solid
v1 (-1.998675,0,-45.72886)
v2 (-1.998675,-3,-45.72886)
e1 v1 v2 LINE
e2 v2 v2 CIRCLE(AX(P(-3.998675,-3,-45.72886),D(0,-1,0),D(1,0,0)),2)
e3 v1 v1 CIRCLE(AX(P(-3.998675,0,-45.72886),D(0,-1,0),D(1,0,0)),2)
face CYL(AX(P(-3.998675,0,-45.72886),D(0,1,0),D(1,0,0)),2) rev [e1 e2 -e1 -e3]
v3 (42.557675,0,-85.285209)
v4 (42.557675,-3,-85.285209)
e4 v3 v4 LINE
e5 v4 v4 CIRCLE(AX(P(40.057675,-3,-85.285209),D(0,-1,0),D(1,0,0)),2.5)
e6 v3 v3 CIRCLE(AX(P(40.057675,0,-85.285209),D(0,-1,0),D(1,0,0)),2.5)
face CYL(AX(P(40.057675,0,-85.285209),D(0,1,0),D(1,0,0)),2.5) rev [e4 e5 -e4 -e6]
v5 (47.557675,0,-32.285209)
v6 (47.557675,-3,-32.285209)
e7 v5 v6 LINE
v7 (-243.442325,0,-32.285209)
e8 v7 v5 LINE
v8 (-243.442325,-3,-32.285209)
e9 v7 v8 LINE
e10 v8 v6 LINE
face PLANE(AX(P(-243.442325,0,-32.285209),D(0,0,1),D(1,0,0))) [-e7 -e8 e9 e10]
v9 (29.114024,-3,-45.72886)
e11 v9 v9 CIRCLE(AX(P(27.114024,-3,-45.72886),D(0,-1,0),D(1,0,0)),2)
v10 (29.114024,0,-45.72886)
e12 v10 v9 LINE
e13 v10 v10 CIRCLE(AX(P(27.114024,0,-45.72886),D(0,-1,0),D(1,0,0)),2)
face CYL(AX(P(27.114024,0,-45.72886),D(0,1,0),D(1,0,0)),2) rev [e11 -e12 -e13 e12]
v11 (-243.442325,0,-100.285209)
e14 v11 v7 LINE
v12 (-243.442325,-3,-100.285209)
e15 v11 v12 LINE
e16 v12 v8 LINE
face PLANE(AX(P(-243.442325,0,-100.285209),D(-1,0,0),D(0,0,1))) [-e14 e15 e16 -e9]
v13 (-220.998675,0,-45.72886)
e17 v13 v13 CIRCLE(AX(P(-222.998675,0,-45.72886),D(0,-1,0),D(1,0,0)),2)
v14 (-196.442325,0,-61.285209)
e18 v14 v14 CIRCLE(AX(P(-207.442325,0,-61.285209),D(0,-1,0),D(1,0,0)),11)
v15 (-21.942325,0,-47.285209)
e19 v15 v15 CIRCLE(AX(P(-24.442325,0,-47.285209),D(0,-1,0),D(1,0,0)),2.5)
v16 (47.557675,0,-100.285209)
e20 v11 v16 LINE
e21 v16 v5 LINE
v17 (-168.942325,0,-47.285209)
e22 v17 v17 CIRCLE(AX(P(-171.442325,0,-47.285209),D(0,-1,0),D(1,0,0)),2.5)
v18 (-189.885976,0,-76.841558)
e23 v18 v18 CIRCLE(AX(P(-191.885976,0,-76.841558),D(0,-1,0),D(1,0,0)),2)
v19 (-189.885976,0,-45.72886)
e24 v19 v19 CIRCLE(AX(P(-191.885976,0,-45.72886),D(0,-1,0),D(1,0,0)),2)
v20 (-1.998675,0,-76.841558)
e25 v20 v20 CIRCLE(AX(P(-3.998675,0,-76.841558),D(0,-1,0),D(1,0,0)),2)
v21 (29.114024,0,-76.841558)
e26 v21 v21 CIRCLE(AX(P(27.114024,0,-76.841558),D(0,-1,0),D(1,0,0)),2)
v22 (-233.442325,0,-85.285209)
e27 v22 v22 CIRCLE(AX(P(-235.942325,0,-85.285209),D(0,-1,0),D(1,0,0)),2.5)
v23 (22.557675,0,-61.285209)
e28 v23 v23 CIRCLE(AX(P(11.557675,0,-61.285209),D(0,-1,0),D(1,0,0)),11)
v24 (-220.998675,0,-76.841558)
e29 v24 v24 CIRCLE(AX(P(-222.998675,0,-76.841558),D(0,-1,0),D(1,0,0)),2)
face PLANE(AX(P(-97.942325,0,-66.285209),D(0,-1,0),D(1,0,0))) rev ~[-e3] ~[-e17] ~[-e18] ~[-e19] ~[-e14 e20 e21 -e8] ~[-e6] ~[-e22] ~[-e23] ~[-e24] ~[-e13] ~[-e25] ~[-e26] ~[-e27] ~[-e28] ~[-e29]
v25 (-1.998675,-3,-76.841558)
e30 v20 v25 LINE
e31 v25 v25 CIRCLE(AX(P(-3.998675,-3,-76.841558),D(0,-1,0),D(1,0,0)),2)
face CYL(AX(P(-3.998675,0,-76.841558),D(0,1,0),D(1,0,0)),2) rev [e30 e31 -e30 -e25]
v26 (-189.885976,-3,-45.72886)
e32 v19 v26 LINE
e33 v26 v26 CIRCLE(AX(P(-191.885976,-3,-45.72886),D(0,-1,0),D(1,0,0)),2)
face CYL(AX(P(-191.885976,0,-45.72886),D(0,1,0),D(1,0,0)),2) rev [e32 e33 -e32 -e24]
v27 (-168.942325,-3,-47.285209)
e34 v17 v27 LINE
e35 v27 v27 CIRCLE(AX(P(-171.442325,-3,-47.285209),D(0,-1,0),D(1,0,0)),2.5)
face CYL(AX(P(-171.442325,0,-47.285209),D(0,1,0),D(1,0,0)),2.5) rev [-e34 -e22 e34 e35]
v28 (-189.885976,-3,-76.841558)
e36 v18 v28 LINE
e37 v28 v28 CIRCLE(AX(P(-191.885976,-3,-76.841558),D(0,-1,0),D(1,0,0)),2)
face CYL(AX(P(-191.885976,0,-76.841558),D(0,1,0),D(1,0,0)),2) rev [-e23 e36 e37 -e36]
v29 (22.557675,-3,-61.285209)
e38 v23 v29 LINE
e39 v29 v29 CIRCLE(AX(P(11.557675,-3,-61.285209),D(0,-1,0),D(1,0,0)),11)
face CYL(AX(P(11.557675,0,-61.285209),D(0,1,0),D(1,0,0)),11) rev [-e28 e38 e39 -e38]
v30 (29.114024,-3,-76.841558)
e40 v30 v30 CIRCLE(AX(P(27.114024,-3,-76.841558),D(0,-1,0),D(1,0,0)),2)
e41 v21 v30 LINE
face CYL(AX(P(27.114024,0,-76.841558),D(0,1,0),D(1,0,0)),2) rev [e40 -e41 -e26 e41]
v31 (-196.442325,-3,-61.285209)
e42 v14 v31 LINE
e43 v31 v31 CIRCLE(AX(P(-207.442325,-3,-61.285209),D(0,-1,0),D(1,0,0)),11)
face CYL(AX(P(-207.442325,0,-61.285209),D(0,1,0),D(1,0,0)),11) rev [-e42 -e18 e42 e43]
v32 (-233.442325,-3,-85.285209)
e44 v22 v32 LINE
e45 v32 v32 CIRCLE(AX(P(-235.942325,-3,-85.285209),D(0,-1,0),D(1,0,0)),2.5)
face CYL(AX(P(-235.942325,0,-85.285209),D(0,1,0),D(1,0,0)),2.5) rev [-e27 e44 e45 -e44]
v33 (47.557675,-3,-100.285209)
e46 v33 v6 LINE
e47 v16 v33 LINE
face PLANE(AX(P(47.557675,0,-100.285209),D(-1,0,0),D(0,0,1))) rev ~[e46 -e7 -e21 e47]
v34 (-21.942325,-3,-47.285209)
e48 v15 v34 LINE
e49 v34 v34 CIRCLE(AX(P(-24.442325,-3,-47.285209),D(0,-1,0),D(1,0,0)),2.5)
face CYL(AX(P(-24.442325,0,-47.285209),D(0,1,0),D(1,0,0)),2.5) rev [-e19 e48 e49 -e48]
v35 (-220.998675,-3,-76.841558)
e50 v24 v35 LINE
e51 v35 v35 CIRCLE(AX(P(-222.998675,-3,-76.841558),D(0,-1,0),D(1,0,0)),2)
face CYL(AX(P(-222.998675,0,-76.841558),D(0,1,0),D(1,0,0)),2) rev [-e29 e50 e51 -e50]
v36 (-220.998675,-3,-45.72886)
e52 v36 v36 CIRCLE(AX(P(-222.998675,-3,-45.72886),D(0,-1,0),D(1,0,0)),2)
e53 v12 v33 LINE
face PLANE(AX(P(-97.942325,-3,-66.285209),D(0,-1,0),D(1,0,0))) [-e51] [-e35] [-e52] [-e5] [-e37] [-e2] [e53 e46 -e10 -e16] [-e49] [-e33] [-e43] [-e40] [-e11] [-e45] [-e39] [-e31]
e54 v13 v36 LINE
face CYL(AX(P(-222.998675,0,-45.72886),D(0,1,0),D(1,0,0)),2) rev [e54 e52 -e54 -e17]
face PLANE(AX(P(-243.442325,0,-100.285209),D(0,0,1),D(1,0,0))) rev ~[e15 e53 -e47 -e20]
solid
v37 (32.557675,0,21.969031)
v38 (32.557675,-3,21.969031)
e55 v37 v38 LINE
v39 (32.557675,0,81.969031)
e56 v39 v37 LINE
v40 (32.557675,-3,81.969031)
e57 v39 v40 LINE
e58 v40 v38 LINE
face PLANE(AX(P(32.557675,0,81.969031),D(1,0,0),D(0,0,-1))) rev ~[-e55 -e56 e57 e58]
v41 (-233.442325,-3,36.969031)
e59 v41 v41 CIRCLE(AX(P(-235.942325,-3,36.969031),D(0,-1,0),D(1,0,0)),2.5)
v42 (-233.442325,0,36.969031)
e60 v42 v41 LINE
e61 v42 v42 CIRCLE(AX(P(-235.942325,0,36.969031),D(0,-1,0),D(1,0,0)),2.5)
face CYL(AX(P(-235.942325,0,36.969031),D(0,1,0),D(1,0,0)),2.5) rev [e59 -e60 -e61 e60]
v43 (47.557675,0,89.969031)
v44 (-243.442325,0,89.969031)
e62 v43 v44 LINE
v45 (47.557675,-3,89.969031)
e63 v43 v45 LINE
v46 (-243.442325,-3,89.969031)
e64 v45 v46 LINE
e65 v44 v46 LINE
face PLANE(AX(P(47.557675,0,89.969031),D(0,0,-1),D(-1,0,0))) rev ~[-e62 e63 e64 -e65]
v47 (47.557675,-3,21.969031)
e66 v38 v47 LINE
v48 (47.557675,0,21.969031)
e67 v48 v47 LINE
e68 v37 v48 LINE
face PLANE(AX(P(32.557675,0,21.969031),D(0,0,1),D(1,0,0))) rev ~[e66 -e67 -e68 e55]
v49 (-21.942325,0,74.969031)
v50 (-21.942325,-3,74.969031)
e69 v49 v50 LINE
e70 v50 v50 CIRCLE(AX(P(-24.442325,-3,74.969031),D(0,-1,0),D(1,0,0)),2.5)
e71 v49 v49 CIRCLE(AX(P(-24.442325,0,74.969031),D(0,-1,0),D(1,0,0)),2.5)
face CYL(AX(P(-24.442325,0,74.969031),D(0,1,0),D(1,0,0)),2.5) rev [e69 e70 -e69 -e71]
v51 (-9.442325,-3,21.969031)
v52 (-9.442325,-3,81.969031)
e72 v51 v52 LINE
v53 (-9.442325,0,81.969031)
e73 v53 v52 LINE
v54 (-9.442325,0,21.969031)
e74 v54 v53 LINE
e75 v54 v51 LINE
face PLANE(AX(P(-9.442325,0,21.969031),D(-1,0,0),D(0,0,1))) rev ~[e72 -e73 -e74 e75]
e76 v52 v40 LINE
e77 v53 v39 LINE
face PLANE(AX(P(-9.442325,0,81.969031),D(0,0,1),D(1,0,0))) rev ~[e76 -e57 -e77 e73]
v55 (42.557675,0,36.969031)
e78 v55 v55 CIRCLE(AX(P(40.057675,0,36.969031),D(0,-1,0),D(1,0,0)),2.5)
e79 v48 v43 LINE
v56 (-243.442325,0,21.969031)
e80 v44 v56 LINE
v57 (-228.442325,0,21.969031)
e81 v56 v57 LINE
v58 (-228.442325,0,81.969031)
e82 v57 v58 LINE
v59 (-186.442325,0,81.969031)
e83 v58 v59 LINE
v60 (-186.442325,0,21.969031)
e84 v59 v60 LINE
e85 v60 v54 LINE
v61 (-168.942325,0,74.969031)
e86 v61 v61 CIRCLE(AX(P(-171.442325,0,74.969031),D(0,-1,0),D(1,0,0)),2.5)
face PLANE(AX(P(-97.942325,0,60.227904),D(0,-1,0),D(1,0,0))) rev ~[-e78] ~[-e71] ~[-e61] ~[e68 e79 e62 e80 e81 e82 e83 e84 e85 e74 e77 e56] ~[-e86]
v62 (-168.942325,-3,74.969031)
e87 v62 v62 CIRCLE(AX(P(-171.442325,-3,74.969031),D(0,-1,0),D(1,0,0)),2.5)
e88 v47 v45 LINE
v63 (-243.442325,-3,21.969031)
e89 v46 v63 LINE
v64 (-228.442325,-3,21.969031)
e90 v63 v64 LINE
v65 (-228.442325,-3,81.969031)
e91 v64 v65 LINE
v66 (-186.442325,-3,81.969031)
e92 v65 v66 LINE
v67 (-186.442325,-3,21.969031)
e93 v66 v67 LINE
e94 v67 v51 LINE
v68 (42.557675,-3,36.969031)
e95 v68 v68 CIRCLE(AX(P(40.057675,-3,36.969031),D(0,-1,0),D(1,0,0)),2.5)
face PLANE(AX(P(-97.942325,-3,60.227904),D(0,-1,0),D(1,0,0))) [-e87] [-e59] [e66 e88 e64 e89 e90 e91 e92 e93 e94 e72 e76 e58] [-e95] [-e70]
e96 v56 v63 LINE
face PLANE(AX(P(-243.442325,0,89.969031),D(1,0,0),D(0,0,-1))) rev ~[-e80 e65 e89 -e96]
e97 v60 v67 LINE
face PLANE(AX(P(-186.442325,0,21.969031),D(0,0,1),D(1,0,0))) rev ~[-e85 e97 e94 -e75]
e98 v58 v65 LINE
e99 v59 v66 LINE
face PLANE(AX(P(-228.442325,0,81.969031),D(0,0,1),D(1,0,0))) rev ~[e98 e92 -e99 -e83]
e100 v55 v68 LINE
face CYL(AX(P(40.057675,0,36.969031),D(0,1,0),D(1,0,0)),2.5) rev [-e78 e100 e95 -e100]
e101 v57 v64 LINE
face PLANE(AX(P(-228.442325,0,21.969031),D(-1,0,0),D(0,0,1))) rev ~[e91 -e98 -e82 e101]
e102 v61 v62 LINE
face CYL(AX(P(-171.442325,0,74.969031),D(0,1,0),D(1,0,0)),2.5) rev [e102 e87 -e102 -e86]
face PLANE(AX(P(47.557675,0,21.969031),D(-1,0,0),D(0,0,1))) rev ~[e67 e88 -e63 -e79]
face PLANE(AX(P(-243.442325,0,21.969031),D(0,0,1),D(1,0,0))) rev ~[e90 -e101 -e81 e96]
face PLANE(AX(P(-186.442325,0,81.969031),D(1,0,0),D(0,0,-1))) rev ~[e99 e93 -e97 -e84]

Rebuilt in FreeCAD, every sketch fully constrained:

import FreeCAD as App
import Part
import Sketcher


def add_polygon(sketch, points):
    """Adds a closed chain of lines whose ends are joined by coincident constraints."""
    first, n = sketch.GeometryCount, len(points)
    for a, b in zip(points, points[1:] + points[:1]):
        sketch.addGeometry(Part.LineSegment(App.Vector(*a, 0), App.Vector(*b, 0)), False)
    for i in range(n):
        sketch.addConstraint(Sketcher.Constraint("Coincident", first + i, 2, first + (i + 1) % n, 1))

doc = App.newDocument("Part")
body = doc.addObject("PartDesign::Body", "Body")
body.AllowCompound = True

# Sketch on XZ plane
sketch1 = doc.addObject("Sketcher::SketchObject", "Sketch")
body.addObject(sketch1)
sketch1.AttachmentSupport = (doc.XZ_Plane, [""])
sketch1.MapMode = "FlatFace"
add_polygon(sketch1, [(47.557675, 89.969031), (-243.442325, 89.969031), (-243.442325, 21.969031), (-228.442325, 21.969031), (-228.442325, 81.969031), (-186.442325, 81.969031), (-186.442325, 21.969031), (-9.442325, 21.969031), (-9.442325, 81.969031), (32.557675, 81.969031), (32.557675, 21.969031), (47.557675, 21.969031)])  # lines 0-11
sketch1.addGeometry(Part.Circle(App.Vector(-235.942325, 36.969031, 0), App.Vector(0, 0, 1), 2.5), False)  # 12
sketch1.addGeometry(Part.Circle(App.Vector(40.057675, 36.969031, 0), App.Vector(0, 0, 1), 2.5), False)  # 13
sketch1.addGeometry(Part.Circle(App.Vector(-171.442325, 74.969031, 0), App.Vector(0, 0, 1), 2.5), False)  # 14
sketch1.addGeometry(Part.Circle(App.Vector(-24.442325, 74.969031, 0), App.Vector(0, 0, 1), 2.5), False)  # 15
add_polygon(sketch1, [(-243.442325, -32.285209), (-243.442325, -100.285209), (47.557675, -100.285209), (47.557675, -32.285209)])  # lines 16-19
sketch1.addGeometry(Part.Circle(App.Vector(-235.942325, -85.285209, 0), App.Vector(0, 0, 1), 2.5), False)  # 20
sketch1.addGeometry(Part.Circle(App.Vector(-222.998675, -76.841558, 0), App.Vector(0, 0, 1), 2), False)  # 21
sketch1.addGeometry(Part.Circle(App.Vector(-191.885976, -76.841558, 0), App.Vector(0, 0, 1), 2), False)  # 22
sketch1.addGeometry(Part.Circle(App.Vector(40.057675, -85.285209, 0), App.Vector(0, 0, 1), 2.5), False)  # 23
sketch1.addGeometry(Part.Circle(App.Vector(-3.998675, -76.841558, 0), App.Vector(0, 0, 1), 2), False)  # 24
sketch1.addGeometry(Part.Circle(App.Vector(27.114024, -76.841558, 0), App.Vector(0, 0, 1), 2), False)  # 25
sketch1.addGeometry(Part.Circle(App.Vector(-207.442325, -61.285209, 0), App.Vector(0, 0, 1), 11), False)  # 26
sketch1.addGeometry(Part.Circle(App.Vector(-222.998675, -45.72886, 0), App.Vector(0, 0, 1), 2), False)  # 27
sketch1.addGeometry(Part.Circle(App.Vector(-171.442325, -47.285209, 0), App.Vector(0, 0, 1), 2.5), False)  # 28
sketch1.addGeometry(Part.Circle(App.Vector(-191.885976, -45.72886, 0), App.Vector(0, 0, 1), 2), False)  # 29
sketch1.addGeometry(Part.Circle(App.Vector(11.557675, -61.285209, 0), App.Vector(0, 0, 1), 11), False)  # 30
sketch1.addGeometry(Part.Circle(App.Vector(-24.442325, -47.285209, 0), App.Vector(0, 0, 1), 2.5), False)  # 31
sketch1.addGeometry(Part.Circle(App.Vector(-3.998675, -45.72886, 0), App.Vector(0, 0, 1), 2), False)  # 32
sketch1.addGeometry(Part.Circle(App.Vector(27.114024, -45.72886, 0), App.Vector(0, 0, 1), 2), False)  # 33
sketch1.addConstraint(Sketcher.Constraint("Horizontal", 0))
sketch1.addConstraint(Sketcher.Constraint("Vertical", 1))
sketch1.addConstraint(Sketcher.Constraint("Horizontal", 2))
sketch1.addConstraint(Sketcher.Constraint("Vertical", 3))
sketch1.addConstraint(Sketcher.Constraint("Horizontal", 4))
sketch1.addConstraint(Sketcher.Constraint("Vertical", 5))
sketch1.addConstraint(Sketcher.Constraint("Horizontal", 6))
sketch1.addConstraint(Sketcher.Constraint("Vertical", 7))
sketch1.addConstraint(Sketcher.Constraint("Horizontal", 8))
sketch1.addConstraint(Sketcher.Constraint("Vertical", 9))
sketch1.addConstraint(Sketcher.Constraint("Horizontal", 10))
sketch1.addConstraint(Sketcher.Constraint("Vertical", 11))
sketch1.addConstraint(Sketcher.Constraint("Vertical", 16))
sketch1.addConstraint(Sketcher.Constraint("Horizontal", 17))
sketch1.addConstraint(Sketcher.Constraint("Vertical", 18))
sketch1.addConstraint(Sketcher.Constraint("Horizontal", 19))
sketch1.addConstraint(Sketcher.Constraint("Equal", 12, 13))
sketch1.addConstraint(Sketcher.Constraint("Equal", 13, 14))
sketch1.addConstraint(Sketcher.Constraint("Equal", 14, 15))
sketch1.addConstraint(Sketcher.Constraint("Equal", 15, 20))
sketch1.addConstraint(Sketcher.Constraint("Equal", 21, 22))
sketch1.addConstraint(Sketcher.Constraint("Equal", 20, 23))
sketch1.addConstraint(Sketcher.Constraint("Equal", 22, 24))
sketch1.addConstraint(Sketcher.Constraint("Equal", 24, 25))
sketch1.addConstraint(Sketcher.Constraint("Equal", 25, 27))
sketch1.addConstraint(Sketcher.Constraint("Equal", 23, 28))
sketch1.addConstraint(Sketcher.Constraint("Equal", 27, 29))
sketch1.addConstraint(Sketcher.Constraint("Equal", 26, 30))
sketch1.addConstraint(Sketcher.Constraint("Equal", 28, 31))
sketch1.addConstraint(Sketcher.Constraint("Equal", 29, 32))
sketch1.addConstraint(Sketcher.Constraint("Equal", 32, 33))
sketch1.addConstraint(Sketcher.Constraint("Horizontal", 12, 3, 13, 3))
sketch1.addConstraint(Sketcher.Constraint("Horizontal", 14, 3, 15, 3))
sketch1.addConstraint(Sketcher.Constraint("Horizontal", 21, 3, 22, 3))
sketch1.addConstraint(Sketcher.Constraint("Horizontal", 20, 3, 23, 3))
sketch1.addConstraint(Sketcher.Constraint("Horizontal", 22, 3, 24, 3))
sketch1.addConstraint(Sketcher.Constraint("Horizontal", 24, 3, 25, 3))
sketch1.addConstraint(Sketcher.Constraint("Horizontal", 27, 3, 29, 3))
sketch1.addConstraint(Sketcher.Constraint("Horizontal", 26, 3, 30, 3))
sketch1.addConstraint(Sketcher.Constraint("Horizontal", 28, 3, 31, 3))
sketch1.addConstraint(Sketcher.Constraint("Horizontal", 29, 3, 32, 3))
sketch1.addConstraint(Sketcher.Constraint("Horizontal", 32, 3, 33, 3))
sketch1.addConstraint(Sketcher.Constraint("Horizontal", 2, 2, 5, 2))
sketch1.addConstraint(Sketcher.Constraint("Horizontal", 4, 2, 7, 2))
sketch1.addConstraint(Sketcher.Constraint("Horizontal", 6, 2, 9, 2))
sketch1.addConstraint(Sketcher.Constraint("Vertical", 12, 3, 20, 3))
sketch1.addConstraint(Sketcher.Constraint("Vertical", 13, 3, 23, 3))
sketch1.addConstraint(Sketcher.Constraint("Vertical", 21, 3, 27, 3))
sketch1.addConstraint(Sketcher.Constraint("Vertical", 14, 3, 28, 3))
sketch1.addConstraint(Sketcher.Constraint("Vertical", 22, 3, 29, 3))
sketch1.addConstraint(Sketcher.Constraint("Vertical", 15, 3, 31, 3))
sketch1.addConstraint(Sketcher.Constraint("Vertical", 24, 3, 32, 3))
sketch1.addConstraint(Sketcher.Constraint("Vertical", 25, 3, 33, 3))
sketch1.addConstraint(Sketcher.Constraint("Vertical", 1, 2, 16, 2))
sketch1.addConstraint(Sketcher.Constraint("Vertical", 11, 2, 17, 2))
sketch1.addConstraint(Sketcher.Constraint("Equal", 4, 8))
sketch1.addConstraint(Sketcher.Constraint("Equal", 2, 10))
sketch1.addConstraint(Sketcher.Constraint("Equal", 11, 16))
sketch1.addConstraint(Sketcher.Constraint("Diameter", 12, 5.0))
sketch1.addConstraint(Sketcher.Constraint("Diameter", 21, 4.0))
sketch1.addConstraint(Sketcher.Constraint("Diameter", 26, 22.0))
sketch1.addConstraint(Sketcher.Constraint("DistanceX", 0, 2, 0, 1, 291.0))
sketch1.addConstraint(Sketcher.Constraint("DistanceX", 2, 1, 2, 2, 15.0))
sketch1.addConstraint(Sketcher.Constraint("DistanceX", 4, 1, 4, 2, 42.0))
sketch1.addConstraint(Sketcher.Constraint("DistanceY", 1, 2, 1, 1, 68.0))
sketch1.addConstraint(Sketcher.Constraint("DistanceY", 3, 1, 3, 2, 60.0))
sketch1.addConstraint(Sketcher.Constraint("DistanceX", 12, 3, 13, 3, 276.0))
sketch1.addConstraint(Sketcher.Constraint("DistanceY", 12, 3, 14, 3, 38.0))
sketch1.addConstraint(Sketcher.Constraint("DistanceX", 14, 3, 15, 3, 147.0))
sketch1.addConstraint(Sketcher.Constraint("DistanceX", 21, 3, 24, 3, 219.0))
sketch1.addConstraint(Sketcher.Constraint("DistanceX", 22, 3, 25, 3, 219.0))
sketch1.addConstraint(Sketcher.Constraint("DistanceY", 20, 3, 26, 3, 24.0))
sketch1.addConstraint(Sketcher.Constraint("DistanceX", 26, 3, 14, 3, 36.0))
sketch1.addConstraint(Sketcher.Constraint("DistanceY", 26, 3, 28, 3, 14.0))
sketch1.addConstraint(Sketcher.Constraint("DistanceX", 15, 3, 30, 3, 36.0))
sketch1.addConstraint(Sketcher.Constraint("DistanceY", 12, 3, 0, 2, 53.0))
sketch1.addConstraint(Sketcher.Constraint("DistanceX", 0, 2, 14, 3, 72.0))
sketch1.addConstraint(Sketcher.Constraint("DistanceY", 16, 2, 20, 3, 15.0))
sketch1.addConstraint(Sketcher.Constraint("DistanceX", 12, 3, 14, 3, 64.5))
sketch1.addConstraint(Sketcher.Constraint("DistanceX", 21, 3, 22, 3, 31.112699))
sketch1.addConstraint(Sketcher.Constraint("DistanceY", 21, 3, 27, 3, 31.112698))
sketch1.addConstraint(Sketcher.Constraint("DistanceY", -1, 1, 12, 3, 36.969031))
sketch1.addConstraint(Sketcher.Constraint("DistanceY", 20, 3, -1, 1, 85.285209))
sketch1.addConstraint(Sketcher.Constraint("DistanceY", 21, 3, -1, 1, 76.841558))
sketch1.addConstraint(Sketcher.Constraint("DistanceX", 20, 3, 21, 3, 12.94365))
sketch1.addConstraint(Sketcher.Constraint("DistanceX", 12, 3, -1, 1, 235.942325))
pad1 = doc.addObject("PartDesign::Pad", "Pad")
body.addObject(pad1)
pad1.Profile = sketch1
pad1.Length = 3

doc.recompute()
